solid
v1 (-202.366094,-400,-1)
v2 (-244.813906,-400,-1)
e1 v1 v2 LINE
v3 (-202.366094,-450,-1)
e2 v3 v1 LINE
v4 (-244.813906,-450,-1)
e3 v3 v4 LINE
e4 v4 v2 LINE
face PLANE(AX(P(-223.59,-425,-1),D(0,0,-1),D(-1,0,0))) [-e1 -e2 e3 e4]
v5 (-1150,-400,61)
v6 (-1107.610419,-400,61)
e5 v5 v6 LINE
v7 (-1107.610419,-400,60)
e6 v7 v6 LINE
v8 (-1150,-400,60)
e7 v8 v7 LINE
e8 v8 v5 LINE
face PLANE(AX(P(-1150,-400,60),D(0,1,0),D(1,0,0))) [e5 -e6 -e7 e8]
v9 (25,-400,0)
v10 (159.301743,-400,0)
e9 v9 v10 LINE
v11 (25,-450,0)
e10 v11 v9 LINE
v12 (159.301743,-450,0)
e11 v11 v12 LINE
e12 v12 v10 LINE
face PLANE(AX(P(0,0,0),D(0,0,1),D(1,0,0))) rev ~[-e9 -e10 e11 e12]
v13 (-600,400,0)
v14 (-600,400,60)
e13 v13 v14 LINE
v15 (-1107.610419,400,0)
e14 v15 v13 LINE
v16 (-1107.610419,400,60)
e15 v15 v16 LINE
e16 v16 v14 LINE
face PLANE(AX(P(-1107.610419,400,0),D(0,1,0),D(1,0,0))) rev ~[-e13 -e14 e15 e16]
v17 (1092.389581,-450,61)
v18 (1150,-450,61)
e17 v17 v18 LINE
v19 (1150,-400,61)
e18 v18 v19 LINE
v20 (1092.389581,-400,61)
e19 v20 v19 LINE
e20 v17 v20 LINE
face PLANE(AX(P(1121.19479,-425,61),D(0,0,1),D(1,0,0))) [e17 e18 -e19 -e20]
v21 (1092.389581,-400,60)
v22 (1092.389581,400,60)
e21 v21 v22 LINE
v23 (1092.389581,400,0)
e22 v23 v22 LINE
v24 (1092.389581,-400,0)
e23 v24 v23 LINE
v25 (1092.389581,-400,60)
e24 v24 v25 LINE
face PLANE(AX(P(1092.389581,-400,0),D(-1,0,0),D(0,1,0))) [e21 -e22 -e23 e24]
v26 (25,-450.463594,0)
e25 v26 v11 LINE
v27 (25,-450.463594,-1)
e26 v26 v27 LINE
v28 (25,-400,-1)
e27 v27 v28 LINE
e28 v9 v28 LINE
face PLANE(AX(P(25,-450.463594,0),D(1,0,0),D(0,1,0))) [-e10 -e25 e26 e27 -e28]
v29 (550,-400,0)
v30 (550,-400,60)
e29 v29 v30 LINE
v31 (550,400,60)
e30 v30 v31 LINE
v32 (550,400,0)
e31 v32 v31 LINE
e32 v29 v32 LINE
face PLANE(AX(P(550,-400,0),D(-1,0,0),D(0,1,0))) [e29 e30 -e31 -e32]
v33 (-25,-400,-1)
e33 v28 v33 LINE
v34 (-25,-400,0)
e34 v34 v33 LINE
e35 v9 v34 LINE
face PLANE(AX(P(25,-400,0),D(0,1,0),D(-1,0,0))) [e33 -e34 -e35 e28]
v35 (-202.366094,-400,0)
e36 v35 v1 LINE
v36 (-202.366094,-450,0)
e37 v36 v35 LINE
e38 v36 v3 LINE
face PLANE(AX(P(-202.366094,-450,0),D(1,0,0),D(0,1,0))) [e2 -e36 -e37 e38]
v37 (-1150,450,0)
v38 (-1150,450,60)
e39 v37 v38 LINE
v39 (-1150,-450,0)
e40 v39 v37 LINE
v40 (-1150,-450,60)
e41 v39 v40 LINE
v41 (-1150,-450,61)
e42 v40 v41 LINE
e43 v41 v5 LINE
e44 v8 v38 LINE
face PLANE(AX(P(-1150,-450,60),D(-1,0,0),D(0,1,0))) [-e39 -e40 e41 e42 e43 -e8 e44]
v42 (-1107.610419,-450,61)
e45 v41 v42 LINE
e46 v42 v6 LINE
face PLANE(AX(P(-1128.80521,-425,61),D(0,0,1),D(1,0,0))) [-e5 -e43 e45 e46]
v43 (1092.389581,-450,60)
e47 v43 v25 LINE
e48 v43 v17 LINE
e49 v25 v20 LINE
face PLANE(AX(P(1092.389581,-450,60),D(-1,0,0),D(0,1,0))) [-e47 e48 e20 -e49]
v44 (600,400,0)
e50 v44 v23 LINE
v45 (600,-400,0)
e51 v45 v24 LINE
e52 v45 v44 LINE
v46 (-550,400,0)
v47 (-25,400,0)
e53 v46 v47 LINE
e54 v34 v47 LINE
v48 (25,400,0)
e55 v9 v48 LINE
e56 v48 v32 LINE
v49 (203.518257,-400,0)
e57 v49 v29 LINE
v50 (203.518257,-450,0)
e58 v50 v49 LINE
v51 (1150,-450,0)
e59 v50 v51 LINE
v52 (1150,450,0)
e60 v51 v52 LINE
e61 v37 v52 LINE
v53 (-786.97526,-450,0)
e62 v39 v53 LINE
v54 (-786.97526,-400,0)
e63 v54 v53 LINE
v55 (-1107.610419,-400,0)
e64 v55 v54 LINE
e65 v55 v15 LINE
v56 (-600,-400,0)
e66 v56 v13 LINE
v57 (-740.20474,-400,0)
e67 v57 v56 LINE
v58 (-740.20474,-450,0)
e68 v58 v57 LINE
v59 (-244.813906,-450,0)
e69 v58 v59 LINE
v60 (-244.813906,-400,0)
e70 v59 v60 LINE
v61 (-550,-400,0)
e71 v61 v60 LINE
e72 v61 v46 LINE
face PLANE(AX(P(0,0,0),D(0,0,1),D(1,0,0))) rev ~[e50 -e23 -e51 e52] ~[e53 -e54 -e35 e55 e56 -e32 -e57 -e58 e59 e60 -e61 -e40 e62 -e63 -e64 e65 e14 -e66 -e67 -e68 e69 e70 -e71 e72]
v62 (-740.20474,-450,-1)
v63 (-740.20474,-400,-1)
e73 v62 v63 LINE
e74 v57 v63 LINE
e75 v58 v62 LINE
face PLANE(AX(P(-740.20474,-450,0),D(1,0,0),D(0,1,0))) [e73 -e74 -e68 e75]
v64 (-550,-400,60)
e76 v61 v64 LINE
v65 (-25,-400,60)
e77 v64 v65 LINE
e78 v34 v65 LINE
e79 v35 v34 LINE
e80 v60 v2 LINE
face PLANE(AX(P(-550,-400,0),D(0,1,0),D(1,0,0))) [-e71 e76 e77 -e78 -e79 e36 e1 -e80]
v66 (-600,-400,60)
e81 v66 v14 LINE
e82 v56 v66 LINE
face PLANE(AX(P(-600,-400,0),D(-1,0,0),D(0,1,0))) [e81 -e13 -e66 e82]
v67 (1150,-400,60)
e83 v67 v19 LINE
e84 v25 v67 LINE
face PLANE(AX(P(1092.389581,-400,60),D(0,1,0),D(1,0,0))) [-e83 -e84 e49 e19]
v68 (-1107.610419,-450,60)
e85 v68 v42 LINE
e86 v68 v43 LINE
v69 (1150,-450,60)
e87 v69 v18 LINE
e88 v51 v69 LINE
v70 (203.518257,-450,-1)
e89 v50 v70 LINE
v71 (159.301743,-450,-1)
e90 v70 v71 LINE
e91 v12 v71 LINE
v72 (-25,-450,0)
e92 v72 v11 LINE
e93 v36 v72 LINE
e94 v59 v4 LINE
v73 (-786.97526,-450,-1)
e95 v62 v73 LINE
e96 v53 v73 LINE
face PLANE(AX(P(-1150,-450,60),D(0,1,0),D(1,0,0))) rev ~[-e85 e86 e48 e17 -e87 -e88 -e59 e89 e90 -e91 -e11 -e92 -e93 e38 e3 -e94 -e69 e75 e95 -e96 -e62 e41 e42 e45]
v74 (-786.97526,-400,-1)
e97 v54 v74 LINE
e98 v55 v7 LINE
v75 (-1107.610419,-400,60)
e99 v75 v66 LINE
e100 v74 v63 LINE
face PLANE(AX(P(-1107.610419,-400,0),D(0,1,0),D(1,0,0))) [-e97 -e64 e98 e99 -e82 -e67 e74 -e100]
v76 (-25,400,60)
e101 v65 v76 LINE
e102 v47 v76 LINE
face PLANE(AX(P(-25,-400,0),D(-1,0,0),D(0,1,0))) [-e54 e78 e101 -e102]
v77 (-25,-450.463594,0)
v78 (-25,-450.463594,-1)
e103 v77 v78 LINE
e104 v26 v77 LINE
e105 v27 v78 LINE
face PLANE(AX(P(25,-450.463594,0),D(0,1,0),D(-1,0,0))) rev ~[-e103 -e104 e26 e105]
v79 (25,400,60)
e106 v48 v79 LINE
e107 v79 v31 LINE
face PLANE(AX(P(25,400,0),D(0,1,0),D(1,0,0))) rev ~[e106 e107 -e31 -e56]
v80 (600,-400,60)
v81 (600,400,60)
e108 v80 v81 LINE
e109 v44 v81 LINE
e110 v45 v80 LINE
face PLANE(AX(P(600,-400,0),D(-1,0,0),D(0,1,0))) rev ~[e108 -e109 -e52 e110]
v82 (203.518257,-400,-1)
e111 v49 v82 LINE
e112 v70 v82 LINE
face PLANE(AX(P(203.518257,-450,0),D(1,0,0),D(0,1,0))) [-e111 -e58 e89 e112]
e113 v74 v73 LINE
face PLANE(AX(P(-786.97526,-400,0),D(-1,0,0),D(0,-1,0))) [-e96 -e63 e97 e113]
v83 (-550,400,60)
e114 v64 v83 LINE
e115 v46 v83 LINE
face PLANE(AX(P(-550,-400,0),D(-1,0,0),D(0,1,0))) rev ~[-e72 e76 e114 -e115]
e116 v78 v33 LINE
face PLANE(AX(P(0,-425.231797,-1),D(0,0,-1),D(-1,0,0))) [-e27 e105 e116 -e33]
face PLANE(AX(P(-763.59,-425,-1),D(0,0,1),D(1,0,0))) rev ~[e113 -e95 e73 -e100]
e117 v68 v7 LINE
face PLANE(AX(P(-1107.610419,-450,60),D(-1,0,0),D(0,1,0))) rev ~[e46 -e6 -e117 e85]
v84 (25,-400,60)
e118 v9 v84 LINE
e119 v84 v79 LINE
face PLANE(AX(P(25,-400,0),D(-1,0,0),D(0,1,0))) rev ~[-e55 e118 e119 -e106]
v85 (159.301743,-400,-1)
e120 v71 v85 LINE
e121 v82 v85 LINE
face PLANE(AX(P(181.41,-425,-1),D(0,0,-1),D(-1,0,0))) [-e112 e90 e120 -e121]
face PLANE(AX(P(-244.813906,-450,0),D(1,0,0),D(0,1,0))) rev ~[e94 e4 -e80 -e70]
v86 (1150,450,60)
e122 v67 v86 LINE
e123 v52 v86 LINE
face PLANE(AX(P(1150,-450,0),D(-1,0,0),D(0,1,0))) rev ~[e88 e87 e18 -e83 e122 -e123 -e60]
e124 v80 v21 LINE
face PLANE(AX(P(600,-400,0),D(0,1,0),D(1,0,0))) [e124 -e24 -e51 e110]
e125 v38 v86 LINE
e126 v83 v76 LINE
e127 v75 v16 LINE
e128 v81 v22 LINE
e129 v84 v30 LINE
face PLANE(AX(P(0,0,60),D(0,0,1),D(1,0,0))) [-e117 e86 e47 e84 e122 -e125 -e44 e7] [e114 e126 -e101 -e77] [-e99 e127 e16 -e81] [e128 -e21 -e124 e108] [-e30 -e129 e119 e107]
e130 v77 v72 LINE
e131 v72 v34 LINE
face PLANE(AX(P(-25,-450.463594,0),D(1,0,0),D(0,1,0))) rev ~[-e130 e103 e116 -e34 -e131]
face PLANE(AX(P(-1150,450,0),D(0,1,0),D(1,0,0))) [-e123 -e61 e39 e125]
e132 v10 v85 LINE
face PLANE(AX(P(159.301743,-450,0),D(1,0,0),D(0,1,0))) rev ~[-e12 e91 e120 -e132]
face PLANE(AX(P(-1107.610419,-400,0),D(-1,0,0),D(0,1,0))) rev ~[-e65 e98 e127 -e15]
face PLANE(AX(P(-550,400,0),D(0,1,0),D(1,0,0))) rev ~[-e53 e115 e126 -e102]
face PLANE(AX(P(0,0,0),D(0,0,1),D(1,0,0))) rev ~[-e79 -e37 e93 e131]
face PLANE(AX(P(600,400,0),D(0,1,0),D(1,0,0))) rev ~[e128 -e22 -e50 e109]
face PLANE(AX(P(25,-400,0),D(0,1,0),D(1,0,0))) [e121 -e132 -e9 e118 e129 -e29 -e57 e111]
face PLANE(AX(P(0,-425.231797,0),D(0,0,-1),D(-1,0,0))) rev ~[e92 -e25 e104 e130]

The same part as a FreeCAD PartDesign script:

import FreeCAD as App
import Part
import Sketcher

V = App.Vector
Q = App.Units.Quantity

doc = App.newDocument("Part")
params = doc.addObject("Spreadsheet::Sheet", "Params")
for row, (alias, value) in enumerate([
    ("sketch1_width", "2300 mm"),
    ("sketch1_width2", "525 mm"),
    ("sketch1_height", "900 mm"),
    ("sketch1_height2", "800 mm"),
    ("pad1_length", "60 mm"),
    ("sketch2_height", "50 mm"),
    ("pad2_length", "1 mm"),
    ("sketch3_width", "50 mm"),
    ("pad3_length", "1 mm"),
    ("sketch4_height", "50 mm"),
    ("pad4_length", "1 mm"),
    ("sketch5_height", "50 mm"),
    ("pad5_length", "1 mm"),
    ("sketch6_height", "50 mm"),
    ("pad6_length", "1 mm"),
], start=1):
    params.set(f"A{row}", alias)
    params.set(f"B{row}", "=" + value)
    params.setAlias(f"B{row}", alias)

body = doc.addObject("PartDesign::Body", "Body")

sketch1 = body.newObject("Sketcher::SketchObject", "Sketch")
sketch1.AttachmentSupport = (doc.getObject("XY_Plane"), [""])
sketch1.MapMode = "FlatFace"
sketch1.addGeometry(Part.LineSegment(V(-1150, 450, 0), V(-1150, -450, 0)), False)
sketch1.addGeometry(Part.LineSegment(V(-1150, -450, 0), V(1150, -450, 0)), False)
sketch1.addGeometry(Part.LineSegment(V(1150, -450, 0), V(1150, 450, 0)), False)
sketch1.addGeometry(Part.LineSegment(V(1150, 450, 0), V(-1150, 450, 0)), False)
sketch1.addGeometry(Part.LineSegment(V(-600, -400, 0), V(-1108, -400, 0)), False)
sketch1.addGeometry(Part.LineSegment(V(-1108, -400, 0), V(-1108, 400, 0)), False)
sketch1.addGeometry(Part.LineSegment(V(-1108, 400, 0), V(-600, 400, 0)), False)
sketch1.addGeometry(Part.LineSegment(V(-600, 400, 0), V(-600, -400, 0)), False)
sketch1.addGeometry(Part.LineSegment(V(-25, -400, 0), V(-550, -400, 0)), False)
sketch1.addGeometry(Part.LineSegment(V(-550, -400, 0), V(-550, 400, 0)), False)
sketch1.addGeometry(Part.LineSegment(V(-550, 400, 0), V(-25, 400, 0)), False)
sketch1.addGeometry(Part.LineSegment(V(-25, 400, 0), V(-25, -400, 0)), False)
sketch1.addGeometry(Part.LineSegment(V(550, -400, 0), V(25, -400, 0)), False)
sketch1.addGeometry(Part.LineSegment(V(25, -400, 0), V(25, 400, 0)), False)
sketch1.addGeometry(Part.LineSegment(V(25, 400, 0), V(550, 400, 0)), False)
sketch1.addGeometry(Part.LineSegment(V(550, 400, 0), V(550, -400, 0)), False)
sketch1.addGeometry(Part.LineSegment(V(1092, -400, 0), V(600, -400, 0)), False)
sketch1.addGeometry(Part.LineSegment(V(600, -400, 0), V(600, 400, 0)), False)
sketch1.addGeometry(Part.LineSegment(V(600, 400, 0), V(1092, 400, 0)), False)
sketch1.addGeometry(Part.LineSegment(V(1092, 400, 0), V(1092, -400, 0)), False)
sketch1.addConstraint(Sketcher.Constraint("Coincident", 0, 2, 1, 1))
sketch1.addConstraint(Sketcher.Constraint("Coincident", 1, 2, 2, 1))
sketch1.addConstraint(Sketcher.Constraint("Coincident", 2, 2, 3, 1))
sketch1.addConstraint(Sketcher.Constraint("Coincident", 3, 2, 0, 1))
sketch1.addConstraint(Sketcher.Constraint("Coincident", 4, 2, 5, 1))
sketch1.addConstraint(Sketcher.Constraint("Coincident", 5, 2, 6, 1))
sketch1.addConstraint(Sketcher.Constraint("Coincident", 6, 2, 7, 1))
sketch1.addConstraint(Sketcher.Constraint("Coincident", 7, 2, 4, 1))
sketch1.addConstraint(Sketcher.Constraint("Coincident", 8, 2, 9, 1))
sketch1.addConstraint(Sketcher.Constraint("Coincident", 9, 2, 10, 1))
sketch1.addConstraint(Sketcher.Constraint("Coincident", 10, 2, 11, 1))
sketch1.addConstraint(Sketcher.Constraint("Coincident", 11, 2, 8, 1))
sketch1.addConstraint(Sketcher.Constraint("Coincident", 12, 2, 13, 1))
sketch1.addConstraint(Sketcher.Constraint("Coincident", 13, 2, 14, 1))
sketch1.addConstraint(Sketcher.Constraint("Coincident", 14, 2, 15, 1))
sketch1.addConstraint(Sketcher.Constraint("Coincident", 15, 2, 12, 1))
sketch1.addConstraint(Sketcher.Constraint("Coincident", 16, 2, 17, 1))
sketch1.addConstraint(Sketcher.Constraint("Coincident", 17, 2, 18, 1))
sketch1.addConstraint(Sketcher.Constraint("Coincident", 18, 2, 19, 1))
sketch1.addConstraint(Sketcher.Constraint("Coincident", 19, 2, 16, 1))
sketch1.addConstraint(Sketcher.Constraint("Vertical", 0))
sketch1.addConstraint(Sketcher.Constraint("Horizontal", 1))
sketch1.addConstraint(Sketcher.Constraint("Vertical", 2))
sketch1.addConstraint(Sketcher.Constraint("Horizontal", 3))
sketch1.addConstraint(Sketcher.Constraint("Horizontal", 4))
sketch1.addConstraint(Sketcher.Constraint("Vertical", 5))
sketch1.addConstraint(Sketcher.Constraint("Horizontal", 6))
sketch1.addConstraint(Sketcher.Constraint("Vertical", 7))
sketch1.addConstraint(Sketcher.Constraint("Horizontal", 8))
sketch1.addConstraint(Sketcher.Constraint("Vertical", 9))
sketch1.addConstraint(Sketcher.Constraint("Horizontal", 10))
sketch1.addConstraint(Sketcher.Constraint("Vertical", 11))
sketch1.addConstraint(Sketcher.Constraint("Horizontal", 12))
sketch1.addConstraint(Sketcher.Constraint("Vertical", 13))
sketch1.addConstraint(Sketcher.Constraint("Horizontal", 14))
sketch1.addConstraint(Sketcher.Constraint("Vertical", 15))
sketch1.addConstraint(Sketcher.Constraint("Horizontal", 16))
sketch1.addConstraint(Sketcher.Constraint("Vertical", 17))
sketch1.addConstraint(Sketcher.Constraint("Horizontal", 18))
sketch1.addConstraint(Sketcher.Constraint("Vertical", 19))
sketch1.addConstraint(Sketcher.Constraint("Symmetric", 0, 2, 2, 2, -1, 1))
sketch1.addConstraint(Sketcher.Constraint("Symmetric", 10, 2, 12, 2, -1, 1))
sketch1.addConstraint(Sketcher.Constraint("Symmetric", 8, 2, 14, 2, -1, 1))
sketch1.addConstraint(Sketcher.Constraint("Symmetric", 6, 2, 16, 2, -1, 1))
sketch1.addConstraint(Sketcher.Constraint("Horizontal", 7, 2, 8, 2))
sketch1.addConstraint(Sketcher.Constraint("Horizontal", 6, 2, 9, 2))
sketch1.addConstraint(Sketcher.Constraint("Horizontal", 11, 2, 12, 2))
sketch1.addConstraint(Sketcher.Constraint("Horizontal", 14, 2, 17, 2))
sketch1.addConstraint(Sketcher.Constraint("DistanceX", 1, 1, 1, 2, Q("2300 mm")))
sketch1.addConstraint(Sketcher.Constraint("DistanceX", 8, 2, 8, 1, Q("525 mm")))
sketch1.addConstraint(Sketcher.Constraint("DistanceY", 0, 2, 0, 1, Q("900 mm")))
sketch1.addConstraint(Sketcher.Constraint("DistanceY", 5, 1, 5, 2, Q("800 mm")))
sketch1.addConstraint(Sketcher.Constraint("DistanceX", 6, 2, -1, 1, Q("600 mm")))
sketch1.addConstraint(Sketcher.Constraint("DistanceX", 8, 2, -1, 1, Q("550 mm")))
sketch1.addConstraint(Sketcher.Constraint("DistanceX", 4, 2, 4, 1, Q("507.610419 mm")))
sketch1.addConstraint(Sketcher.Constraint("DistanceX", 16, 2, 16, 1, Q("492.389581 mm")))
sketch1.setExpression("Constraints[48]", "Params.sketch1_width")
sketch1.setExpression("Constraints[49]", "Params.sketch1_width2")
sketch1.setExpression("Constraints[50]", "Params.sketch1_height")
sketch1.setExpression("Constraints[51]", "Params.sketch1_height2")
pad1 = body.newObject("PartDesign::Pad", "Pad")
pad1.Profile = sketch1
pad1.setExpression("Length", "Params.pad1_length")

sketch2 = body.newObject("Sketcher::SketchObject", "Sketch001")
sketch2.AttachmentSupport = (doc.getObject("XY_Plane"), [""])
sketch2.MapMode = "FlatFace"
sketch2.AttachmentOffset = App.Placement(V(0, 0, 60), App.Rotation())
sketch2.addGeometry(Part.LineSegment(V(-1150, -400, 0), V(-1150, -450, 0)), False)
sketch2.addGeometry(Part.LineSegment(V(-1150, -450, 0), V(-1108, -450, 0)), False)
sketch2.addGeometry(Part.LineSegment(V(-1108, -450, 0), V(-1108, -400, 0)), False)
sketch2.addGeometry(Part.LineSegment(V(-1108, -400, 0), V(-1150, -400, 0)), False)
sketch2.addGeometry(Part.LineSegment(V(1092, -400, 0), V(1092, -450, 0)), False)
sketch2.addGeometry(Part.LineSegment(V(1092, -450, 0), V(1150, -450, 0)), False)
sketch2.addGeometry(Part.LineSegment(V(1150, -450, 0), V(1150, -400, 0)), False)
sketch2.addGeometry(Part.LineSegment(V(1150, -400, 0), V(1092, -400, 0)), False)
sketch2.addConstraint(Sketcher.Constraint("Coincident", 0, 2, 1, 1))
sketch2.addConstraint(Sketcher.Constraint("Coincident", 1, 2, 2, 1))
sketch2.addConstraint(Sketcher.Constraint("Coincident", 2, 2, 3, 1))
sketch2.addConstraint(Sketcher.Constraint("Coincident", 3, 2, 0, 1))
sketch2.addConstraint(Sketcher.Constraint("Coincident", 4, 2, 5, 1))
sketch2.addConstraint(Sketcher.Constraint("Coincident", 5, 2, 6, 1))
sketch2.addConstraint(Sketcher.Constraint("Coincident", 6, 2, 7, 1))
sketch2.addConstraint(Sketcher.Constraint("Coincident", 7, 2, 4, 1))
sketch2.addConstraint(Sketcher.Constraint("Vertical", 0))
sketch2.addConstraint(Sketcher.Constraint("Horizontal", 1))
sketch2.addConstraint(Sketcher.Constraint("Vertical", 2))
sketch2.addConstraint(Sketcher.Constraint("Horizontal", 3))
sketch2.addConstraint(Sketcher.Constraint("Vertical", 4))
sketch2.addConstraint(Sketcher.Constraint("Horizontal", 5))
sketch2.addConstraint(Sketcher.Constraint("Vertical", 6))
sketch2.addConstraint(Sketcher.Constraint("Horizontal", 7))
sketch2.addConstraint(Sketcher.Constraint("Symmetric", 0, 2, 5, 2, -2))
sketch2.addConstraint(Sketcher.Constraint("Horizontal", 3, 2, 6, 2))
sketch2.addConstraint(Sketcher.Constraint("DistanceY", 0, 2, 0, 1, Q("50 mm")))
sketch2.addConstraint(Sketcher.Constraint("DistanceX", 0, 2, -1, 1, Q("1150 mm")))
sketch2.addConstraint(Sketcher.Constraint("DistanceY", 0, 2, -1, 1, Q("450 mm")))
sketch2.addConstraint(Sketcher.Constraint("DistanceX", 1, 2, 4, 2, Q("2200 mm")))
sketch2.addConstraint(Sketcher.Constraint("DistanceX", 1, 1, 1, 2, Q("42.389581 mm")))
sketch2.setExpression("Constraints[18]", "Params.sketch2_height")
pad2 = body.newObject("PartDesign::Pad", "Pad001")
pad2.Profile = sketch2
pad2.setExpression("Length", "Params.pad2_length")

sketch3 = body.newObject("Sketcher::SketchObject", "Sketch002")
sketch3.AttachmentSupport = (doc.getObject("XY_Plane"), [""])
sketch3.MapMode = "FlatFace"
sketch3.addGeometry(Part.LineSegment(V(25, -400, 0), V(25, -450, 0)), False)
sketch3.addGeometry(Part.LineSegment(V(25, -450, 0), V(-25, -450, 0)), False)
sketch3.addGeometry(Part.LineSegment(V(-25, -450, 0), V(-25, -400, 0)), False)
sketch3.addGeometry(Part.LineSegment(V(-25, -400, 0), V(25, -400, 0)), False)
sketch3.addConstraint(Sketcher.Constraint("Coincident", 0, 2, 1, 1))
sketch3.addConstraint(Sketcher.Constraint("Coincident", 1, 2, 2, 1))
sketch3.addConstraint(Sketcher.Constraint("Coincident", 2, 2, 3, 1))
sketch3.addConstraint(Sketcher.Constraint("Coincident", 3, 2, 0, 1))
sketch3.addConstraint(Sketcher.Constraint("Vertical", 0))
sketch3.addConstraint(Sketcher.Constraint("Horizontal", 1))
sketch3.addConstraint(Sketcher.Constraint("Vertical", 2))
sketch3.addConstraint(Sketcher.Constraint("Horizontal", 3))
sketch3.addConstraint(Sketcher.Constraint("DistanceX", 1, 2, 1, 1, Q("50 mm")))
sketch3.addConstraint(Sketcher.Constraint("DistanceX", -1, 1, 0, 2, Q("25 mm")))
sketch3.addConstraint(Sketcher.Constraint("DistanceY", 2, 2, -1, 1, Q("400 mm")))
sketch3.addConstraint(Sketcher.Constraint("DistanceY", 0, 2, 0, 1, Q("50.463594 mm")))
sketch3.setExpression("Constraints[8]", "Params.sketch3_width")
pad3 = body.newObject("PartDesign::Pad", "Pad002")
pad3.Profile = sketch3
pad3.setExpression("Length", "Params.pad3_length")
pad3.Reversed = True

sketch4 = body.newObject("Sketcher::SketchObject", "Sketch003")
sketch4.AttachmentSupport = (doc.getObject("XY_Plane"), [""])
sketch4.MapMode = "FlatFace"
sketch4.addGeometry(Part.LineSegment(V(204, -400, 0), V(204, -450, 0)), False)
sketch4.addGeometry(Part.LineSegment(V(204, -450, 0), V(159, -450, 0)), False)
sketch4.addGeometry(Part.LineSegment(V(159, -450, 0), V(159, -400, 0)), False)
sketch4.addGeometry(Part.LineSegment(V(159, -400, 0), V(204, -400, 0)), False)
sketch4.addConstraint(Sketcher.Constraint("Coincident", 0, 2, 1, 1))
sketch4.addConstraint(Sketcher.Constraint("Coincident", 1, 2, 2, 1))
sketch4.addConstraint(Sketcher.Constraint("Coincident", 2, 2, 3, 1))
sketch4.addConstraint(Sketcher.Constraint("Coincident", 3, 2, 0, 1))
sketch4.addConstraint(Sketcher.Constraint("Vertical", 0))
sketch4.addConstraint(Sketcher.Constraint("Horizontal", 1))
sketch4.addConstraint(Sketcher.Constraint("Vertical", 2))
sketch4.addConstraint(Sketcher.Constraint("Horizontal", 3))
sketch4.addConstraint(Sketcher.Constraint("DistanceY", 0, 2, 0, 1, Q("50 mm")))
sketch4.addConstraint(Sketcher.Constraint("DistanceY", 0, 2, -1, 1, Q("450 mm")))
sketch4.addConstraint(Sketcher.Constraint("DistanceX", 1, 2, 1, 1, Q("44.216515 mm")))
sketch4.addConstraint(Sketcher.Constraint("DistanceX", -1, 1, 0, 2, Q("203.518257 mm")))
sketch4.setExpression("Constraints[8]", "Params.sketch4_height")
pad4 = body.newObject("PartDesign::Pad", "Pad003")
pad4.Profile = sketch4
pad4.setExpression("Length", "Params.pad4_length")
pad4.Reversed = True

sketch5 = body.newObject("Sketcher::SketchObject", "Sketch004")
sketch5.AttachmentSupport = (doc.getObject("XY_Plane"), [""])
sketch5.MapMode = "FlatFace"
sketch5.addGeometry(Part.LineSegment(V(-202, -400, 0), V(-202, -450, 0)), False)
sketch5.addGeometry(Part.LineSegment(V(-202, -450, 0), V(-245, -450, 0)), False)
sketch5.addGeometry(Part.LineSegment(V(-245, -450, 0), V(-245, -400, 0)), False)
sketch5.addGeometry(Part.LineSegment(V(-245, -400, 0), V(-202, -400, 0)), False)
sketch5.addConstraint(Sketcher.Constraint("Coincident", 0, 2, 1, 1))
sketch5.addConstraint(Sketcher.Constraint("Coincident", 1, 2, 2, 1))
sketch5.addConstraint(Sketcher.Constraint("Coincident", 2, 2, 3, 1))
sketch5.addConstraint(Sketcher.Constraint("Coincident", 3, 2, 0, 1))
sketch5.addConstraint(Sketcher.Constraint("Vertical", 0))
sketch5.addConstraint(Sketcher.Constraint("Horizontal", 1))
sketch5.addConstraint(Sketcher.Constraint("Vertical", 2))
sketch5.addConstraint(Sketcher.Constraint("Horizontal", 3))
sketch5.addConstraint(Sketcher.Constraint("DistanceY", 0, 2, 0, 1, Q("50 mm")))
sketch5.addConstraint(Sketcher.Constraint("DistanceY", 0, 2, -1, 1, Q("450 mm")))
sketch5.addConstraint(Sketcher.Constraint("DistanceX", 1, 2, 1, 1, Q("42.447812 mm")))
sketch5.addConstraint(Sketcher.Constraint("DistanceX", 0, 2, -1, 1, Q("202.366094 mm")))
sketch5.setExpression("Constraints[8]", "Params.sketch5_height")
pad5 = body.newObject("PartDesign::Pad", "Pad004")
pad5.Profile = sketch5
pad5.setExpression("Length", "Params.pad5_length")
pad5.Reversed = True

sketch6 = body.newObject("Sketcher::SketchObject", "Sketch005")
sketch6.AttachmentSupport = (doc.getObject("XY_Plane"), [""])
sketch6.MapMode = "FlatFace"
sketch6.addGeometry(Part.LineSegment(V(-787, -400, 0), V(-740, -400, 0)), False)
sketch6.addGeometry(Part.LineSegment(V(-740, -400, 0), V(-740, -450, 0)), False)
sketch6.addGeometry(Part.LineSegment(V(-740, -450, 0), V(-787, -450, 0)), False)
sketch6.addGeometry(Part.LineSegment(V(-787, -450, 0), V(-787, -400, 0)), False)
sketch6.addConstraint(Sketcher.Constraint("Coincident", 0, 2, 1, 1))
sketch6.addConstraint(Sketcher.Constraint("Coincident", 1, 2, 2, 1))
sketch6.addConstraint(Sketcher.Constraint("Coincident", 2, 2, 3, 1))
sketch6.addConstraint(Sketcher.Constraint("Coincident", 3, 2, 0, 1))
sketch6.addConstraint(Sketcher.Constraint("Horizontal", 0))
sketch6.addConstraint(Sketcher.Constraint("Vertical", 1))
sketch6.addConstraint(Sketcher.Constraint("Horizontal", 2))
sketch6.addConstraint(Sketcher.Constraint("Vertical", 3))
sketch6.addConstraint(Sketcher.Constraint("DistanceY", 1, 2, 1, 1, Q("50 mm")))
sketch6.addConstraint(Sketcher.Constraint("DistanceY", 0, 2, -1, 1, Q("400 mm")))
sketch6.addConstraint(Sketcher.Constraint("DistanceX", 0, 1, 0, 2, Q("46.77052 mm")))
sketch6.addConstraint(Sketcher.Constraint("DistanceX", 0, 2, -1, 1, Q("740.20474 mm")))
sketch6.setExpression("Constraints[8]", "Params.sketch6_height")
pad6 = body.newObject("PartDesign::Pad", "Pad005")
pad6.Profile = sketch6
pad6.setExpression("Length", "Params.pad6_length")
pad6.Reversed = True

doc.recompute()
